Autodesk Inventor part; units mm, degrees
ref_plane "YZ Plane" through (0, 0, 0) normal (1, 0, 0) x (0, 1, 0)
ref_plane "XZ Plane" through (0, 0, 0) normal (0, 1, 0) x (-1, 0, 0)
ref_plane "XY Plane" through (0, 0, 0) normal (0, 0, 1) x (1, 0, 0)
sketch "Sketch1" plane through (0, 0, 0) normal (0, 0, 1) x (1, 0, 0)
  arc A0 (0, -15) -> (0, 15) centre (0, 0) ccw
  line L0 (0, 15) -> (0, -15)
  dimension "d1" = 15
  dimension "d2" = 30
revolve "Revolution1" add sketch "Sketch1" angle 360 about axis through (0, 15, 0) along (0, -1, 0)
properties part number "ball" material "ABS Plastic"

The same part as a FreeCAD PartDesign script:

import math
import FreeCAD as App
import Part
import Sketcher

V = App.Vector

doc = App.newDocument("Part")
params = doc.addObject("Spreadsheet::Sheet", "Params")
for row, (alias, value) in enumerate([
    ("sketch1_radius", "15 mm"),
    ("revolution_angle", "360 deg"),
], start=1):
    params.set(f"A{row}", alias)
    params.set(f"B{row}", "=" + value)
    params.setAlias(f"B{row}", alias)

body = doc.addObject("PartDesign::Body", "Body")

# Sketch on XY plane
sketch1 = body.newObject("Sketcher::SketchObject", "Sketch")
sketch1.AttachmentSupport = (doc.getObject("XY_Plane"), [""])
sketch1.MapMode = "FlatFace"
sketch1.addGeometry([
    Part.LineSegment(V(0, 15, 0), V(0, -15, 0)),
    Part.ArcOfCircle(Part.Circle(V(0, 0, 0), V(0, 0, 1), 15), math.radians(-90), math.radians(90)),
], False)
sketch1.addConstraint([
    Sketcher.Constraint("Coincident", 0, 1, 1, 2),
    Sketcher.Constraint("Coincident", 1, 1, 0, 2),
    Sketcher.Constraint("Vertical", 0),
    Sketcher.Constraint("Coincident", 1, 3, -1, 1),
    Sketcher.Constraint("PointOnObject", 0, 1, -2),
    Sketcher.Constraint("Radius", 1, 15.0),
])
sketch1.setExpression("Constraints[5]", "Params.sketch1_radius")
revolution = body.newObject("PartDesign::Revolution", "Revolution")
revolution.Profile = sketch1
revolution.ReferenceAxis = (sketch1, ["V_Axis"])
revolution.setExpression("Angle", "Params.revolution_angle")

doc.recompute()
